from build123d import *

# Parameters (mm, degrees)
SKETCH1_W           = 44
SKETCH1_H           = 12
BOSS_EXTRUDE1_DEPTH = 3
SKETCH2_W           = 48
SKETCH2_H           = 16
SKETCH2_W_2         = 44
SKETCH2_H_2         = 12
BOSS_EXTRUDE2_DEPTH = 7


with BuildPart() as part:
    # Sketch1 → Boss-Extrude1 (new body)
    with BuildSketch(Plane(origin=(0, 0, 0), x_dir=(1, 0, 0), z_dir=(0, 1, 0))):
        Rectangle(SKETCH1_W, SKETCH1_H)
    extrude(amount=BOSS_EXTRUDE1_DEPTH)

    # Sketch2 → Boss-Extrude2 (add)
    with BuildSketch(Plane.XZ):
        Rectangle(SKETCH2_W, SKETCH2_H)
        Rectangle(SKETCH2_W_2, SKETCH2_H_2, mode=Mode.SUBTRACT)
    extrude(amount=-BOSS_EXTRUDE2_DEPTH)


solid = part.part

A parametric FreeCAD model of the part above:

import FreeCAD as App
import Part
import Sketcher

V = App.Vector


def add_polygon(sketch, points):
    """Adds a closed chain of lines whose ends are joined by coincident constraints."""
    first, n = sketch.GeometryCount, len(points)
    for a, b in zip(points, points[1:] + points[:1]):
        sketch.addGeometry(Part.LineSegment(App.Vector(*a, 0), App.Vector(*b, 0)), False)
    for i in range(n):
        sketch.addConstraint(Sketcher.Constraint("Coincident", first + i, 2, first + (i + 1) % n, 1))

doc = App.newDocument("Part")
body = doc.addObject("PartDesign::Body", "Body")

# Sketch on XZ plane
sketch1 = doc.addObject("Sketcher::SketchObject", "Sketch")
body.addObject(sketch1)
sketch1.AttachmentSupport = (doc.XZ_Plane, [""])
sketch1.MapMode = "FlatFace"
add_polygon(sketch1, [(-22, -6), (-22, 6), (22, 6), (22, -6)])  # lines 0-3
sketch1.addConstraint([
    Sketcher.Constraint("Vertical", 0),
    Sketcher.Constraint("Horizontal", 1),
    Sketcher.Constraint("Vertical", 2),
    Sketcher.Constraint("Horizontal", 3),
    Sketcher.Constraint("Symmetric", 0, 2, 2, 2, -1, 1),
    Sketcher.Constraint("DistanceX", 1, 1, 1, 2, 44.0),
    Sketcher.Constraint("DistanceY", 0, 1, 0, 2, 12.0),
])
pad1 = doc.addObject("PartDesign::Pad", "Pad")
body.addObject(pad1)
pad1.Profile = sketch1
pad1.Length = 3
pad1.Reversed = True

# Sketch on XZ plane
sketch2 = doc.addObject("Sketcher::SketchObject", "Sketch001")
body.addObject(sketch2)
sketch2.AttachmentSupport = (doc.XZ_Plane, [""])
sketch2.MapMode = "FlatFace"
add_polygon(sketch2, [(-24, 8), (-24, -8), (24, -8), (24, 8)])  # lines 0-3
add_polygon(sketch2, [(22, -6), (-22, -6), (-22, 6), (22, 6)])  # lines 4-7
sketch2.addConstraint([
    Sketcher.Constraint("Vertical", 0),
    Sketcher.Constraint("Horizontal", 1),
    Sketcher.Constraint("Vertical", 2),
    Sketcher.Constraint("Horizontal", 3),
    Sketcher.Constraint("Horizontal", 4),
    Sketcher.Constraint("Vertical", 5),
    Sketcher.Constraint("Horizontal", 6),
    Sketcher.Constraint("Vertical", 7),
    Sketcher.Constraint("Symmetric", 0, 2, 2, 2, -1, 1),
    Sketcher.Constraint("Symmetric", 4, 2, 6, 2, -1, 1),
    Sketcher.Constraint("DistanceX", 1, 1, 1, 2, 48.0),
    Sketcher.Constraint("DistanceX", 4, 2, 4, 1, 44.0),
    Sketcher.Constraint("DistanceY", 0, 2, 0, 1, 16.0),
    Sketcher.Constraint("DistanceY", 5, 1, 5, 2, 12.0),
])
pad2 = doc.addObject("PartDesign::Pad", "Pad001")
body.addObject(pad2)
pad2.Profile = sketch2
pad2.Length = 7
pad2.Reversed = True

doc.recompute()
